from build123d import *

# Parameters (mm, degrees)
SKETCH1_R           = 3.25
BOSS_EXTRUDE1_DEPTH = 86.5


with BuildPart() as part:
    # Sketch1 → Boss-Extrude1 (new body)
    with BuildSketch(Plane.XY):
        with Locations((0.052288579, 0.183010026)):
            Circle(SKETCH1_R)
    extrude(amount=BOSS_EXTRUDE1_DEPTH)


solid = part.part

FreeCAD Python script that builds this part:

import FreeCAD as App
import Part
import Sketcher

V = App.Vector

doc = App.newDocument("Part")
body = doc.addObject("PartDesign::Body", "Body")

sketch1 = body.newObject("Sketcher::SketchObject", "Sketch")
sketch1.AttachmentSupport = (doc.getObject("XY_Plane"), [""])
sketch1.MapMode = "FlatFace"
sketch1.addGeometry(Part.Circle(V(0.1, 0.2, 0), V(0, 0, 1), 3.2), False)
sketch1.addConstraint(Sketcher.Constraint("Diameter", 0, 6.5))
sketch1.addConstraint(Sketcher.Constraint("DistanceX", -1, 1, 0, 3, 0.052289))
sketch1.addConstraint(Sketcher.Constraint("DistanceY", -1, 1, 0, 3, 0.18301))
pad1 = body.newObject("PartDesign::Pad", "Pad")
pad1.Profile = sketch1
pad1.Length = 86.5

doc.recompute()
